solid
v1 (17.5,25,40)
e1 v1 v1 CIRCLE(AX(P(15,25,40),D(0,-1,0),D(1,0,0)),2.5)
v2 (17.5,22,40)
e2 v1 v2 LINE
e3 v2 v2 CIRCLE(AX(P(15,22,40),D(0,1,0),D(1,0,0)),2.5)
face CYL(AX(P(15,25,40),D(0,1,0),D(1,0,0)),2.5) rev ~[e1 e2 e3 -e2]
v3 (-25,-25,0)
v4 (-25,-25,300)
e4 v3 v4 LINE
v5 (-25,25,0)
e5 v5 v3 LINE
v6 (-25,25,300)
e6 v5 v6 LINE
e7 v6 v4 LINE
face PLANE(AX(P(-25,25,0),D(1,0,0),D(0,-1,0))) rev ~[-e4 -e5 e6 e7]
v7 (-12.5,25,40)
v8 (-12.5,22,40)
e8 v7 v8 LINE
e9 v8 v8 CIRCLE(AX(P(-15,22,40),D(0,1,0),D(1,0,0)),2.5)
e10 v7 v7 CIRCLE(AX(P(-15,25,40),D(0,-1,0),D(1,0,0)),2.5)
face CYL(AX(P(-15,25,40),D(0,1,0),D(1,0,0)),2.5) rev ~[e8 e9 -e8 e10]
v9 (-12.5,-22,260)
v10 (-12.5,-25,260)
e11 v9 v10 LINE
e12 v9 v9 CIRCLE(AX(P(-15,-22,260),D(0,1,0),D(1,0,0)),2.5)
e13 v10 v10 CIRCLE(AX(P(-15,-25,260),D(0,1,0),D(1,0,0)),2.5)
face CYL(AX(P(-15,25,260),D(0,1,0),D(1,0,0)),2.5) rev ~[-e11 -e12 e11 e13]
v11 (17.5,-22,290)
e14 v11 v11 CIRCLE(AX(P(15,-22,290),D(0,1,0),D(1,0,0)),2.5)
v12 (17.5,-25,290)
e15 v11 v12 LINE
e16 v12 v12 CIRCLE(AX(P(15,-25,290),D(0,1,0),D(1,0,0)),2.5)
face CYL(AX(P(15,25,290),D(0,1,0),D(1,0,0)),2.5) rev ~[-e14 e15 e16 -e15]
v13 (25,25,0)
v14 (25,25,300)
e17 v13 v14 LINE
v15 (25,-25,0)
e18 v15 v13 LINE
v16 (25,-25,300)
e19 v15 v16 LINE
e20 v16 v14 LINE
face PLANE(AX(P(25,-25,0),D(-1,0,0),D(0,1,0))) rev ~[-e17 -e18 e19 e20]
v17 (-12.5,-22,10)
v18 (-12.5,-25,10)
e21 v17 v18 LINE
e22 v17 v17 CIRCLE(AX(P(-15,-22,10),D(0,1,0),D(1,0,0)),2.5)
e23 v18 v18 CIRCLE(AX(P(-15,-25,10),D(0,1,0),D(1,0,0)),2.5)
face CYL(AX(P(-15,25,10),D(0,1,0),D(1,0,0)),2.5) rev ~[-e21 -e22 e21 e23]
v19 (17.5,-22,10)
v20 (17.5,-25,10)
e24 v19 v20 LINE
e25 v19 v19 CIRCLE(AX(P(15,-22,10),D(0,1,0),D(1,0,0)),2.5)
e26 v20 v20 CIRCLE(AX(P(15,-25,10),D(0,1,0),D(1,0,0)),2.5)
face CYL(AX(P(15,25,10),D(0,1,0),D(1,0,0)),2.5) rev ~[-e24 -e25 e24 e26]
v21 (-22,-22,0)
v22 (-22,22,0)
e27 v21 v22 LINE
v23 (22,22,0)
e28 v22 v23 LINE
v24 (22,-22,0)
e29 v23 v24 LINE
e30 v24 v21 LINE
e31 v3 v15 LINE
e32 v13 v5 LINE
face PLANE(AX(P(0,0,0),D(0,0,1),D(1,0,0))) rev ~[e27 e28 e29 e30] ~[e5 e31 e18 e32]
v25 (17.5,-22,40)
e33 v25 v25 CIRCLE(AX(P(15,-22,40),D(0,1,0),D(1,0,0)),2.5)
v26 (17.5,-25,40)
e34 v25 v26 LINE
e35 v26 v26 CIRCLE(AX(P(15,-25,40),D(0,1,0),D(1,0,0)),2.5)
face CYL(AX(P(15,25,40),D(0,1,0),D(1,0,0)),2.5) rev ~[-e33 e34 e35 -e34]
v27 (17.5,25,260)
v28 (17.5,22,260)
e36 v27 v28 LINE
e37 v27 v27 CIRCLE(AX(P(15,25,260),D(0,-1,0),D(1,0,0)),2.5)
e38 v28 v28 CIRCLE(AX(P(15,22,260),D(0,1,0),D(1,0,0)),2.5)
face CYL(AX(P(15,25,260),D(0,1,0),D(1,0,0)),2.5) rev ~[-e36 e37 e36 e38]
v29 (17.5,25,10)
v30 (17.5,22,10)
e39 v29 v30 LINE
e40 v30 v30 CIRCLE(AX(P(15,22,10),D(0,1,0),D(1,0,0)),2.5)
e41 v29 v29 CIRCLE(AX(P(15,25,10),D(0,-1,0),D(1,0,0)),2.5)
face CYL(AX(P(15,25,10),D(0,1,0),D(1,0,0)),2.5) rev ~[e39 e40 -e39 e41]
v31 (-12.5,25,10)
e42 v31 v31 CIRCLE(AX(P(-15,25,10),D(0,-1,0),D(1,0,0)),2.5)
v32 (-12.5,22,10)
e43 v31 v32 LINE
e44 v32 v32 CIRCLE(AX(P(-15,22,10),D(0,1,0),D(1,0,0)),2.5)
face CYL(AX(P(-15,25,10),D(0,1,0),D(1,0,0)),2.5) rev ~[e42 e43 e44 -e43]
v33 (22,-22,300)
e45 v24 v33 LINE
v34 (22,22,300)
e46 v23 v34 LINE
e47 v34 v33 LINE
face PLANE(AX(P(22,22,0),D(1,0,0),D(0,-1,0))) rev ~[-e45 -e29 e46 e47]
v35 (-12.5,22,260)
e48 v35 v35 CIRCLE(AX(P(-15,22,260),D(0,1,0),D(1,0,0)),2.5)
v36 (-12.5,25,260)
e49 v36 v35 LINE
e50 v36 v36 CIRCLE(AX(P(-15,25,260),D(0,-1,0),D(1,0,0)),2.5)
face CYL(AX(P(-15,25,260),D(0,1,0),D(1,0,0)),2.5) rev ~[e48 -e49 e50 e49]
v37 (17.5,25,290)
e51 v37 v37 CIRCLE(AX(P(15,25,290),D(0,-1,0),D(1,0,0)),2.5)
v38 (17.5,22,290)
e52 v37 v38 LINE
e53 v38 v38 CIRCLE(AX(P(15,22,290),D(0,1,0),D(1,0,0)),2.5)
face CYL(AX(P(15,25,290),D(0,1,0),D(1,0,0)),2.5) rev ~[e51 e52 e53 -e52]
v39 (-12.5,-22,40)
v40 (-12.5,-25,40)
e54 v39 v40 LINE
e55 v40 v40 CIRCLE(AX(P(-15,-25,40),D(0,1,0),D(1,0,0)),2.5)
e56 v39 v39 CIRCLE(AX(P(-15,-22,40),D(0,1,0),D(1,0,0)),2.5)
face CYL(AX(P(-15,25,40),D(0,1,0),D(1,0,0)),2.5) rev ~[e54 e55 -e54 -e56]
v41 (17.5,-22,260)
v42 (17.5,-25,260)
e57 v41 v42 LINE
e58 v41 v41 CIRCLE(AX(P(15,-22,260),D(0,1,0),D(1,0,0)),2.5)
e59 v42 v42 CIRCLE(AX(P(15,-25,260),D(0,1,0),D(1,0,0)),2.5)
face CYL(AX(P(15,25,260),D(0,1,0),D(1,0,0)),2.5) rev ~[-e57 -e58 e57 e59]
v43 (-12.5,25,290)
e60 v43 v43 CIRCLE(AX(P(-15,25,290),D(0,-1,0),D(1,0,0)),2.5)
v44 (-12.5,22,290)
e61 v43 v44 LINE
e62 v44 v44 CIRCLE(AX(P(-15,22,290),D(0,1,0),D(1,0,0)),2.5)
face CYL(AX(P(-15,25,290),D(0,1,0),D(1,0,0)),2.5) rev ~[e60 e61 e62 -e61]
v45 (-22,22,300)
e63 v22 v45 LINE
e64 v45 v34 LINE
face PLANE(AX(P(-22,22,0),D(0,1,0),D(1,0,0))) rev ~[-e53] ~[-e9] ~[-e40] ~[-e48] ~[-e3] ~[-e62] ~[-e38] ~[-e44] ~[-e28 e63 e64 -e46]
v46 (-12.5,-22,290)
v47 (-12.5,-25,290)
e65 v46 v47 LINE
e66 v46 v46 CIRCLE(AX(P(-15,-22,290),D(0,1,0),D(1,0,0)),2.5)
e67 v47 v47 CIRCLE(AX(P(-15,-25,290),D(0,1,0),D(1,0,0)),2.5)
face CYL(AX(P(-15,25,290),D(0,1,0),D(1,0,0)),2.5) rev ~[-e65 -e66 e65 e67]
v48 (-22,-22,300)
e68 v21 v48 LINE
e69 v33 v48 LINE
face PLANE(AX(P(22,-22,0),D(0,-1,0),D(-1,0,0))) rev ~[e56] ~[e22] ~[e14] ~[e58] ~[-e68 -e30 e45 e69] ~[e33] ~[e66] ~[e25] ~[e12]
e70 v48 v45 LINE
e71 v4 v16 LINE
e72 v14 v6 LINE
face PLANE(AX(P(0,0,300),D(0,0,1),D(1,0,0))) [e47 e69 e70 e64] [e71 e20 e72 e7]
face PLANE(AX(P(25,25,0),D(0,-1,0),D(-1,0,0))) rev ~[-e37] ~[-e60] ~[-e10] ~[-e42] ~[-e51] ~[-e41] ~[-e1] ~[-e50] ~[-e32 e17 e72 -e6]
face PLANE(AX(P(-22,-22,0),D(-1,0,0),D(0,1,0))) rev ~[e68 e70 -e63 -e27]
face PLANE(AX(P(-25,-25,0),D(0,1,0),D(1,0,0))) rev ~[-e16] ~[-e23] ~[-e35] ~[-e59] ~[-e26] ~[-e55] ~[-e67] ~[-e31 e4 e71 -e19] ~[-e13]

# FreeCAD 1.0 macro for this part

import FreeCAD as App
import Part
import Sketcher

V = App.Vector
Q = App.Units.Quantity


def add_polygon(sketch, points):
    """Adds a closed chain of lines whose ends are joined by coincident constraints."""
    first, n = sketch.GeometryCount, len(points)
    for a, b in zip(points, points[1:] + points[:1]):
        sketch.addGeometry(Part.LineSegment(App.Vector(*a, 0), App.Vector(*b, 0)), False)
    for i in range(n):
        sketch.addConstraint(Sketcher.Constraint("Coincident", first + i, 2, first + (i + 1) % n, 1))

doc = App.newDocument("Part")
body = doc.addObject("PartDesign::Body", "Body")

# Sketch on XY plane
sketch1 = body.newObject("Sketcher::SketchObject", "Sketch")
sketch1.AttachmentSupport = (doc.getObject("XY_Plane"), [""])
sketch1.MapMode = "FlatFace"
add_polygon(sketch1, [(-25, 25), (-25, -25), (25, -25), (25, 25)])  # lines 0-3
add_polygon(sketch1, [(-22, -22), (-22, 22), (22, 22), (22, -22)])  # lines 4-7
sketch1.addConstraint(Sketcher.Constraint("Vertical", 0))
sketch1.addConstraint(Sketcher.Constraint("Horizontal", 1))
sketch1.addConstraint(Sketcher.Constraint("Vertical", 2))
sketch1.addConstraint(Sketcher.Constraint("Horizontal", 3))
sketch1.addConstraint(Sketcher.Constraint("Vertical", 4))
sketch1.addConstraint(Sketcher.Constraint("Horizontal", 5))
sketch1.addConstraint(Sketcher.Constraint("Vertical", 6))
sketch1.addConstraint(Sketcher.Constraint("Horizontal", 7))
sketch1.addConstraint(Sketcher.Constraint("Symmetric", 0, 2, 2, 2, -1, 1))
sketch1.addConstraint(Sketcher.Constraint("Symmetric", 4, 2, 6, 2, -1, 1))
sketch1.addConstraint(Sketcher.Constraint("Equal", 3, 0))
sketch1.addConstraint(Sketcher.Constraint("Equal", 7, 4))
sketch1.addConstraint(Sketcher.Constraint("DistanceX", 1, 1, 1, 2, Q("50 mm")))
sketch1.addConstraint(Sketcher.Constraint("DistanceX", 3, 2, 4, 2, Q("3 mm")))
pad1 = body.newObject("PartDesign::Pad", "Pad")
pad1.Profile = sketch1
pad1.Length = 300

# Sketch on XZ plane
sketch2 = body.newObject("Sketcher::SketchObject", "Sketch001")
sketch2.AttachmentSupport = (doc.getObject("XZ_Plane"), [""])
sketch2.MapMode = "FlatFace"
sketch2.AttachmentOffset = App.Placement(V(0, 0, -25), App.Rotation())
sketch2.addGeometry(Part.Circle(V(-15, 40, 0), V(0, 0, 1), 2.5), False)
sketch2.addGeometry(Part.Circle(V(15, 40, 0), V(0, 0, 1), 2.5), False)
sketch2.addGeometry(Part.Circle(V(-15, 10, 0), V(0, 0, 1), 2.5), False)
sketch2.addGeometry(Part.Circle(V(15, 10, 0), V(0, 0, 1), 2.5), False)
sketch2.addGeometry(Part.Circle(V(-15, 290, 0), V(0, 0, 1), 2.5), False)
sketch2.addGeometry(Part.Circle(V(15, 290, 0), V(0, 0, 1), 2.5), False)
sketch2.addGeometry(Part.Circle(V(-15, 260, 0), V(0, 0, 1), 2.5), False)
sketch2.addGeometry(Part.Circle(V(15, 260, 0), V(0, 0, 1), 2.5), False)
sketch2.addConstraint(Sketcher.Constraint("Equal", 0, 1))
sketch2.addConstraint(Sketcher.Constraint("Equal", 1, 2))
sketch2.addConstraint(Sketcher.Constraint("Equal", 2, 3))
sketch2.addConstraint(Sketcher.Constraint("Equal", 3, 4))
sketch2.addConstraint(Sketcher.Constraint("Equal", 4, 5))
sketch2.addConstraint(Sketcher.Constraint("Equal", 5, 6))
sketch2.addConstraint(Sketcher.Constraint("Equal", 6, 7))
sketch2.addConstraint(Sketcher.Constraint("Symmetric", 0, 3, 1, 3, -2))
sketch2.addConstraint(Sketcher.Constraint("Symmetric", 2, 3, 3, 3, -2))
sketch2.addConstraint(Sketcher.Constraint("Symmetric", 4, 3, 5, 3, -2))
sketch2.addConstraint(Sketcher.Constraint("Symmetric", 6, 3, 7, 3, -2))
sketch2.addConstraint(Sketcher.Constraint("Vertical", 0, 3, 2, 3))
sketch2.addConstraint(Sketcher.Constraint("Vertical", 2, 3, 4, 3))
sketch2.addConstraint(Sketcher.Constraint("Vertical", 4, 3, 6, 3))
sketch2.addConstraint(Sketcher.Constraint("Diameter", 0, Q("5 mm")))
sketch2.addConstraint(Sketcher.Constraint("DistanceY", -1, 1, 2, 3, Q("10 mm")))
sketch2.addConstraint(Sketcher.Constraint("DistanceX", 0, 3, 1, 3, Q("30 mm")))
sketch2.addConstraint(Sketcher.Constraint("DistanceY", 2, 3, 0, 3, Q("30 mm")))
sketch2.addConstraint(Sketcher.Constraint("DistanceY", 6, 3, 4, 3, Q("30 mm")))
sketch2.addConstraint(Sketcher.Constraint("DistanceY", -1, 1, 4, 3, Q("290 mm")))
pocket1 = body.newObject("PartDesign::Pocket", "Pocket")
pocket1.Profile = sketch2
pocket1.Type = "ThroughAll"
pocket1.Reversed = True

doc.recompute()
